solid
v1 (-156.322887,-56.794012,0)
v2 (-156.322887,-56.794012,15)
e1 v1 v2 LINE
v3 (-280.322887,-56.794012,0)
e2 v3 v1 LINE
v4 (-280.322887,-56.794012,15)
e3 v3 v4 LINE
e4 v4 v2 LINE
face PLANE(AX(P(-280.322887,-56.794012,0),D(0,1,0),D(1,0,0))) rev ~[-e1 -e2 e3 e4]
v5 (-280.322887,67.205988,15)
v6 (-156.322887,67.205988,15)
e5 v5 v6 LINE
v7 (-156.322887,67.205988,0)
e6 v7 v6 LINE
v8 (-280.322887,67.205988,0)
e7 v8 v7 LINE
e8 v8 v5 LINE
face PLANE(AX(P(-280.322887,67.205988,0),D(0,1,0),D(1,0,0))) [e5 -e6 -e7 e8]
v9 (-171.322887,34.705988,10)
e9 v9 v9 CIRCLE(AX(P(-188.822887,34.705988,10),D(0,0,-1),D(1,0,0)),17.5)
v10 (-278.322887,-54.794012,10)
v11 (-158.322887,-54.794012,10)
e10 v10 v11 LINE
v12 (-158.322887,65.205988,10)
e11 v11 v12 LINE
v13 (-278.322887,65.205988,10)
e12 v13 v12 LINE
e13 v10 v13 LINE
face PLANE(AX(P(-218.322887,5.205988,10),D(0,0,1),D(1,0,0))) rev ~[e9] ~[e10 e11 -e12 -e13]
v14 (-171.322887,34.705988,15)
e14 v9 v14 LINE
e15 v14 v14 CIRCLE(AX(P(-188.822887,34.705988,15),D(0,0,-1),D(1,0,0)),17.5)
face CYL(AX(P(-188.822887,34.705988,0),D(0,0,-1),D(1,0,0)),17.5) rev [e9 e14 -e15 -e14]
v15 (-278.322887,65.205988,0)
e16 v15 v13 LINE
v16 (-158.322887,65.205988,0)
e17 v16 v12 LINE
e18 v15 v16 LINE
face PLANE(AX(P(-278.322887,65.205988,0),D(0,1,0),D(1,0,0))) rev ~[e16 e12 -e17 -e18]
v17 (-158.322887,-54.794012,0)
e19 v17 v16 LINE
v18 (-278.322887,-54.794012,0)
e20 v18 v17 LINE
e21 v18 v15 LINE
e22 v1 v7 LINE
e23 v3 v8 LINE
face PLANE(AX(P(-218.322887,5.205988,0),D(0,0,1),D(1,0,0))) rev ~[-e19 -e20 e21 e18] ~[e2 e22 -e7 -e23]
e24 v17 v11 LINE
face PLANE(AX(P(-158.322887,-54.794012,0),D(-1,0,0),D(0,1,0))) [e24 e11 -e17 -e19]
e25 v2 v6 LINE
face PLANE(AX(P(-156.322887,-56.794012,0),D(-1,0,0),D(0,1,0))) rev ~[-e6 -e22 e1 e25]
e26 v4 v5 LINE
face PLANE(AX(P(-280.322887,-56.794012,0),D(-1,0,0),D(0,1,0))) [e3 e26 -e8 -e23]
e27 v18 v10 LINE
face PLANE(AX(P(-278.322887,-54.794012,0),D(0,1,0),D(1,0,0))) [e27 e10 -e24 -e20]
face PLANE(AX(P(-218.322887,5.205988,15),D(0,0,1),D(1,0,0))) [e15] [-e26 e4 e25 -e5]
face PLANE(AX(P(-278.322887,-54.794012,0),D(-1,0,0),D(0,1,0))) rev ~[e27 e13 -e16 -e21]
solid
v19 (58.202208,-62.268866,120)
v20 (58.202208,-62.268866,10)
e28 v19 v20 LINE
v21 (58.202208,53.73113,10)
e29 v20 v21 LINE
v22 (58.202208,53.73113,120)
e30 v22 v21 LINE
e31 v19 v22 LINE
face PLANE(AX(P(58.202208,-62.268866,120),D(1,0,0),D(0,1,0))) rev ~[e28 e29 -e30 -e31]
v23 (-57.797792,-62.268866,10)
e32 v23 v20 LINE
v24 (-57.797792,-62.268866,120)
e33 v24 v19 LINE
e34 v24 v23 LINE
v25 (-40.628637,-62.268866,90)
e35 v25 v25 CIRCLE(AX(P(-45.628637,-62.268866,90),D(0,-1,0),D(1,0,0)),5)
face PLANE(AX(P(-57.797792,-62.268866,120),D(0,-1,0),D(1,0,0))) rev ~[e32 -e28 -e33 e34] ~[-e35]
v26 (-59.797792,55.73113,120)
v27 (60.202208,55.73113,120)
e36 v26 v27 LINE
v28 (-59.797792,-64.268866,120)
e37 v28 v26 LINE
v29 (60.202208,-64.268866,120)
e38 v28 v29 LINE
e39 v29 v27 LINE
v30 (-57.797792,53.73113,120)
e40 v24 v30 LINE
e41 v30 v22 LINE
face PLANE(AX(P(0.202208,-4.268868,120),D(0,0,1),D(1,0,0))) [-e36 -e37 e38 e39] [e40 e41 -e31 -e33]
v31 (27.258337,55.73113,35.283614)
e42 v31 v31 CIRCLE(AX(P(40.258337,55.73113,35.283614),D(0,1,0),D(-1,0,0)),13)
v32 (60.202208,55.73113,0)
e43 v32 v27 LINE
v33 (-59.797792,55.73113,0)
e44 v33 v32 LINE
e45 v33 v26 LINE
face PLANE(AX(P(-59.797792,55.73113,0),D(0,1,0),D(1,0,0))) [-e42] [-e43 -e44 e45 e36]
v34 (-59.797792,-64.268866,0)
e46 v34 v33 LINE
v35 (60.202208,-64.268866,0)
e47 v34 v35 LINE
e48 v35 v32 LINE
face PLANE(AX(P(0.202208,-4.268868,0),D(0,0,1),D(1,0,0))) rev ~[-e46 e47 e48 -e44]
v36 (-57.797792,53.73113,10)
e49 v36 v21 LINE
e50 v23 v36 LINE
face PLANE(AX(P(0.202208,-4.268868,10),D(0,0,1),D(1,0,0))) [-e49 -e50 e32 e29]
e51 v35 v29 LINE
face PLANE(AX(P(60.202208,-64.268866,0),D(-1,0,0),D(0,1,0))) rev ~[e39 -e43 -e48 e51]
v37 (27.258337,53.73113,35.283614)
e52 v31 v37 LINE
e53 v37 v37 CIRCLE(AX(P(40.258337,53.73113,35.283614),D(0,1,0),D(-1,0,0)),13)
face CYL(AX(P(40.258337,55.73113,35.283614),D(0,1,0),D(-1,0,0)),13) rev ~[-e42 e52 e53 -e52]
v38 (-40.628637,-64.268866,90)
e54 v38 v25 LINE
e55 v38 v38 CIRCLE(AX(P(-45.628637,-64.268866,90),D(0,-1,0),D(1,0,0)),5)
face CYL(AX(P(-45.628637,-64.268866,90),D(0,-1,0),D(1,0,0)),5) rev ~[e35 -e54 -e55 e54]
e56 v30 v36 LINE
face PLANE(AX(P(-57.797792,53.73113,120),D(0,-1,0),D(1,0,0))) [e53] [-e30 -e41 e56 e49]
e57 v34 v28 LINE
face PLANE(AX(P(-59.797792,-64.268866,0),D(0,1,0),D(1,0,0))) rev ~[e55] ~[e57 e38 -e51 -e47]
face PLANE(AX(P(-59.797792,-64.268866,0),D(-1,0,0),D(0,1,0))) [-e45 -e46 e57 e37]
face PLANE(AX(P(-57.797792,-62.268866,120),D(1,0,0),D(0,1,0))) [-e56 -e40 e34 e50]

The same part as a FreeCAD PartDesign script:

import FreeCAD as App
import Part
import Sketcher

V = App.Vector
Q = App.Units.Quantity


def add_polygon(sketch, points):
    """Adds a closed chain of lines whose ends are joined by coincident constraints."""
    first, n = sketch.GeometryCount, len(points)
    for a, b in zip(points, points[1:] + points[:1]):
        sketch.addGeometry(Part.LineSegment(App.Vector(*a, 0), App.Vector(*b, 0)), False)
    for i in range(n):
        sketch.addConstraint(Sketcher.Constraint("Coincident", first + i, 2, first + (i + 1) % n, 1))

doc = App.newDocument("Part")
params = doc.addObject("Spreadsheet::Sheet", "Params")
for row, (alias, value) in enumerate([
    ("sketch1_width", "120 mm"),
    ("pad1_length", "120 mm"),
    ("sketch2_width", "116 mm"),
    ("pocket1_length", "110 mm"),
    ("sketch3_diameter", "26 mm"),
    ("pocket2_length", "25 mm"),
    ("sketch4_diameter", "10 mm"),
    ("pocket3_length", "25 mm"),
    ("sketch5_width", "124 mm"),
    ("pad2_length", "15 mm"),
    ("sketch6_width", "120 mm"),
    ("pocket4_length", "10 mm"),
    ("sketch7_diameter", "35 mm"),
    ("pocket5_length", "20 mm"),
], start=1):
    params.set(f"A{row}", alias)
    params.set(f"B{row}", "=" + value)
    params.setAlias(f"B{row}", alias)

body = doc.addObject("PartDesign::Body", "Body")

# Sketch on XY plane
sketch1 = body.newObject("Sketcher::SketchObject", "Sketch")
sketch1.AttachmentSupport = (doc.getObject("XY_Plane"), [""])
sketch1.MapMode = "FlatFace"
add_polygon(sketch1, [(-60, 56), (-60, -64), (60, -64), (60, 56)])  # lines 0-3
sketch1.addConstraint([
    Sketcher.Constraint("Vertical", 0),
    Sketcher.Constraint("Horizontal", 1),
    Sketcher.Constraint("Vertical", 2),
    Sketcher.Constraint("Horizontal", 3),
    Sketcher.Constraint("DistanceX", 1, 1, 1, 2, Q("120 mm")),
    Sketcher.Constraint("DistanceY", 0, 2, 0, 1, Q("119.999996 mm")),
    Sketcher.Constraint("DistanceY", -1, 1, 2, 2, Q("55.73113 mm")),
    Sketcher.Constraint("DistanceX", 0, 2, -1, 1, Q("59.797792 mm")),
])
sketch1.setExpression("Constraints[8]", "Params.sketch1_width")
pad1 = body.newObject("PartDesign::Pad", "Pad")
pad1.Profile = sketch1
pad1.setExpression("Length", "Params.pad1_length")

# Sketch on XY plane
sketch2 = body.newObject("Sketcher::SketchObject", "Sketch001")
sketch2.AttachmentSupport = (doc.getObject("XY_Plane"), [""])
sketch2.MapMode = "FlatFace"
sketch2.AttachmentOffset = App.Placement(V(0, 0, 120), App.Rotation())
add_polygon(sketch2, [(-58, 54), (-58, -62), (58, -62), (58, 54)])  # lines 0-3
sketch2.addConstraint([
    Sketcher.Constraint("Vertical", 0),
    Sketcher.Constraint("Horizontal", 1),
    Sketcher.Constraint("Vertical", 2),
    Sketcher.Constraint("Horizontal", 3),
    Sketcher.Constraint("DistanceX", 1, 1, 1, 2, Q("116 mm")),
    Sketcher.Constraint("DistanceY", 0, 2, 0, 1, Q("115.999996 mm")),
    Sketcher.Constraint("DistanceY", -1, 1, 2, 2, Q("53.73113 mm")),
    Sketcher.Constraint("DistanceX", 0, 2, -1, 1, Q("57.797792 mm")),
])
sketch2.setExpression("Constraints[8]", "Params.sketch2_width")
pocket1 = body.newObject("PartDesign::Pocket", "Pocket")
pocket1.Profile = sketch2
pocket1.setExpression("Length", "Params.pocket1_length")

# Sketch on XZ plane
sketch3 = body.newObject("Sketcher::SketchObject", "Sketch002")
sketch3.AttachmentSupport = (doc.getObject("XZ_Plane"), [""])
sketch3.MapMode = "FlatFace"
sketch3.AttachmentOffset = App.Placement(V(0, 0, -55.73113), App.Rotation())
sketch3.addGeometry(Part.Circle(V(40, 35, 0), V(0, 0, 1), 13), False)
sketch3.addConstraint([
    Sketcher.Constraint("Diameter", 0, Q("26 mm")),
    Sketcher.Constraint("DistanceX", -1, 1, 0, 3, Q("40.258337 mm")),
    Sketcher.Constraint("DistanceY", -1, 1, 0, 3, Q("35.283614 mm")),
])
sketch3.setExpression("Constraints[0]", "Params.sketch3_diameter")
pocket2 = body.newObject("PartDesign::Pocket", "Pocket001")
pocket2.Profile = sketch3
pocket2.setExpression("Length", "Params.pocket2_length")
pocket2.Reversed = True

# Sketch on XZ plane
sketch4 = body.newObject("Sketcher::SketchObject", "Sketch003")
sketch4.AttachmentSupport = (doc.getObject("XZ_Plane"), [""])
sketch4.MapMode = "FlatFace"
sketch4.AttachmentOffset = App.Placement(V(0, 0, 64.268866), App.Rotation())
sketch4.addGeometry(Part.Circle(V(-46, 90, 0), V(0, 0, 1), 5), False)
sketch4.addConstraint([
    Sketcher.Constraint("Diameter", 0, Q("10 mm")),
    Sketcher.Constraint("DistanceY", -1, 1, 0, 3, Q("90 mm")),
    Sketcher.Constraint("DistanceX", 0, 3, -1, 1, Q("45.628637 mm")),
])
sketch4.setExpression("Constraints[0]", "Params.sketch4_diameter")
pocket3 = body.newObject("PartDesign::Pocket", "Pocket002")
pocket3.Profile = sketch4
pocket3.setExpression("Length", "Params.pocket3_length")
body2 = doc.addObject("PartDesign::Body", "Body001")

# Sketch on XY plane
sketch5 = body2.newObject("Sketcher::SketchObject", "Sketch004")
sketch5.AttachmentSupport = (doc.getObject("XY_Plane001"), [""])
sketch5.MapMode = "FlatFace"
add_polygon(sketch5, [(-280, 67), (-280, -57), (-156, -57), (-156, 67)])  # lines 0-3
sketch5.addConstraint([
    Sketcher.Constraint("Vertical", 0),
    Sketcher.Constraint("Horizontal", 1),
    Sketcher.Constraint("Vertical", 2),
    Sketcher.Constraint("Horizontal", 3),
    Sketcher.Constraint("Equal", 3, 0),
    Sketcher.Constraint("DistanceX", 1, 1, 1, 2, Q("124 mm")),
    Sketcher.Constraint("DistanceY", -1, 1, 2, 2, Q("67.205988 mm")),
    Sketcher.Constraint("DistanceX", 0, 2, -1, 1, Q("280.322887 mm")),
])
sketch5.setExpression("Constraints[9]", "Params.sketch5_width")
pad2 = body2.newObject("PartDesign::Pad", "Pad001")
pad2.Profile = sketch5
pad2.setExpression("Length", "Params.pad2_length")

# Sketch on XY plane
sketch6 = body2.newObject("Sketcher::SketchObject", "Sketch005")
sketch6.AttachmentSupport = (doc.getObject("XY_Plane001"), [""])
sketch6.MapMode = "FlatFace"
add_polygon(sketch6, [(-278, 65), (-278, -55), (-158, -55), (-158, 65)])  # lines 0-3
sketch6.addConstraint([
    Sketcher.Constraint("Vertical", 0),
    Sketcher.Constraint("Horizontal", 1),
    Sketcher.Constraint("Vertical", 2),
    Sketcher.Constraint("Horizontal", 3),
    Sketcher.Constraint("Equal", 3, 0),
    Sketcher.Constraint("DistanceX", 1, 1, 1, 2, Q("120 mm")),
    Sketcher.Constraint("DistanceY", -1, 1, 2, 2, Q("65.205988 mm")),
    Sketcher.Constraint("DistanceX", 0, 2, -1, 1, Q("278.322887 mm")),
])
sketch6.setExpression("Constraints[9]", "Params.sketch6_width")
pocket4 = body2.newObject("PartDesign::Pocket", "Pocket003")
pocket4.Profile = sketch6
pocket4.setExpression("Length", "Params.pocket4_length")
pocket4.Reversed = True

# Sketch on XY plane
sketch7 = body2.newObject("Sketcher::SketchObject", "Sketch006")
sketch7.AttachmentSupport = (doc.getObject("XY_Plane001"), [""])
sketch7.MapMode = "FlatFace"
sketch7.addGeometry(Part.Circle(V(-189, 35, 0), V(0, 0, 1), 18), False)
sketch7.addConstraint([
    Sketcher.Constraint("Diameter", 0, Q("35 mm")),
    Sketcher.Constraint("DistanceX", 0, 3, -1, 1, Q("188.822887 mm")),
    Sketcher.Constraint("DistanceY", -1, 1, 0, 3, Q("34.705988 mm")),
])
sketch7.setExpression("Constraints[0]", "Params.sketch7_diameter")
pocket5 = body2.newObject("PartDesign::Pocket", "Pocket004")
pocket5.Profile = sketch7
pocket5.setExpression("Length", "Params.pocket5_length")
pocket5.Reversed = True

doc.recompute()
